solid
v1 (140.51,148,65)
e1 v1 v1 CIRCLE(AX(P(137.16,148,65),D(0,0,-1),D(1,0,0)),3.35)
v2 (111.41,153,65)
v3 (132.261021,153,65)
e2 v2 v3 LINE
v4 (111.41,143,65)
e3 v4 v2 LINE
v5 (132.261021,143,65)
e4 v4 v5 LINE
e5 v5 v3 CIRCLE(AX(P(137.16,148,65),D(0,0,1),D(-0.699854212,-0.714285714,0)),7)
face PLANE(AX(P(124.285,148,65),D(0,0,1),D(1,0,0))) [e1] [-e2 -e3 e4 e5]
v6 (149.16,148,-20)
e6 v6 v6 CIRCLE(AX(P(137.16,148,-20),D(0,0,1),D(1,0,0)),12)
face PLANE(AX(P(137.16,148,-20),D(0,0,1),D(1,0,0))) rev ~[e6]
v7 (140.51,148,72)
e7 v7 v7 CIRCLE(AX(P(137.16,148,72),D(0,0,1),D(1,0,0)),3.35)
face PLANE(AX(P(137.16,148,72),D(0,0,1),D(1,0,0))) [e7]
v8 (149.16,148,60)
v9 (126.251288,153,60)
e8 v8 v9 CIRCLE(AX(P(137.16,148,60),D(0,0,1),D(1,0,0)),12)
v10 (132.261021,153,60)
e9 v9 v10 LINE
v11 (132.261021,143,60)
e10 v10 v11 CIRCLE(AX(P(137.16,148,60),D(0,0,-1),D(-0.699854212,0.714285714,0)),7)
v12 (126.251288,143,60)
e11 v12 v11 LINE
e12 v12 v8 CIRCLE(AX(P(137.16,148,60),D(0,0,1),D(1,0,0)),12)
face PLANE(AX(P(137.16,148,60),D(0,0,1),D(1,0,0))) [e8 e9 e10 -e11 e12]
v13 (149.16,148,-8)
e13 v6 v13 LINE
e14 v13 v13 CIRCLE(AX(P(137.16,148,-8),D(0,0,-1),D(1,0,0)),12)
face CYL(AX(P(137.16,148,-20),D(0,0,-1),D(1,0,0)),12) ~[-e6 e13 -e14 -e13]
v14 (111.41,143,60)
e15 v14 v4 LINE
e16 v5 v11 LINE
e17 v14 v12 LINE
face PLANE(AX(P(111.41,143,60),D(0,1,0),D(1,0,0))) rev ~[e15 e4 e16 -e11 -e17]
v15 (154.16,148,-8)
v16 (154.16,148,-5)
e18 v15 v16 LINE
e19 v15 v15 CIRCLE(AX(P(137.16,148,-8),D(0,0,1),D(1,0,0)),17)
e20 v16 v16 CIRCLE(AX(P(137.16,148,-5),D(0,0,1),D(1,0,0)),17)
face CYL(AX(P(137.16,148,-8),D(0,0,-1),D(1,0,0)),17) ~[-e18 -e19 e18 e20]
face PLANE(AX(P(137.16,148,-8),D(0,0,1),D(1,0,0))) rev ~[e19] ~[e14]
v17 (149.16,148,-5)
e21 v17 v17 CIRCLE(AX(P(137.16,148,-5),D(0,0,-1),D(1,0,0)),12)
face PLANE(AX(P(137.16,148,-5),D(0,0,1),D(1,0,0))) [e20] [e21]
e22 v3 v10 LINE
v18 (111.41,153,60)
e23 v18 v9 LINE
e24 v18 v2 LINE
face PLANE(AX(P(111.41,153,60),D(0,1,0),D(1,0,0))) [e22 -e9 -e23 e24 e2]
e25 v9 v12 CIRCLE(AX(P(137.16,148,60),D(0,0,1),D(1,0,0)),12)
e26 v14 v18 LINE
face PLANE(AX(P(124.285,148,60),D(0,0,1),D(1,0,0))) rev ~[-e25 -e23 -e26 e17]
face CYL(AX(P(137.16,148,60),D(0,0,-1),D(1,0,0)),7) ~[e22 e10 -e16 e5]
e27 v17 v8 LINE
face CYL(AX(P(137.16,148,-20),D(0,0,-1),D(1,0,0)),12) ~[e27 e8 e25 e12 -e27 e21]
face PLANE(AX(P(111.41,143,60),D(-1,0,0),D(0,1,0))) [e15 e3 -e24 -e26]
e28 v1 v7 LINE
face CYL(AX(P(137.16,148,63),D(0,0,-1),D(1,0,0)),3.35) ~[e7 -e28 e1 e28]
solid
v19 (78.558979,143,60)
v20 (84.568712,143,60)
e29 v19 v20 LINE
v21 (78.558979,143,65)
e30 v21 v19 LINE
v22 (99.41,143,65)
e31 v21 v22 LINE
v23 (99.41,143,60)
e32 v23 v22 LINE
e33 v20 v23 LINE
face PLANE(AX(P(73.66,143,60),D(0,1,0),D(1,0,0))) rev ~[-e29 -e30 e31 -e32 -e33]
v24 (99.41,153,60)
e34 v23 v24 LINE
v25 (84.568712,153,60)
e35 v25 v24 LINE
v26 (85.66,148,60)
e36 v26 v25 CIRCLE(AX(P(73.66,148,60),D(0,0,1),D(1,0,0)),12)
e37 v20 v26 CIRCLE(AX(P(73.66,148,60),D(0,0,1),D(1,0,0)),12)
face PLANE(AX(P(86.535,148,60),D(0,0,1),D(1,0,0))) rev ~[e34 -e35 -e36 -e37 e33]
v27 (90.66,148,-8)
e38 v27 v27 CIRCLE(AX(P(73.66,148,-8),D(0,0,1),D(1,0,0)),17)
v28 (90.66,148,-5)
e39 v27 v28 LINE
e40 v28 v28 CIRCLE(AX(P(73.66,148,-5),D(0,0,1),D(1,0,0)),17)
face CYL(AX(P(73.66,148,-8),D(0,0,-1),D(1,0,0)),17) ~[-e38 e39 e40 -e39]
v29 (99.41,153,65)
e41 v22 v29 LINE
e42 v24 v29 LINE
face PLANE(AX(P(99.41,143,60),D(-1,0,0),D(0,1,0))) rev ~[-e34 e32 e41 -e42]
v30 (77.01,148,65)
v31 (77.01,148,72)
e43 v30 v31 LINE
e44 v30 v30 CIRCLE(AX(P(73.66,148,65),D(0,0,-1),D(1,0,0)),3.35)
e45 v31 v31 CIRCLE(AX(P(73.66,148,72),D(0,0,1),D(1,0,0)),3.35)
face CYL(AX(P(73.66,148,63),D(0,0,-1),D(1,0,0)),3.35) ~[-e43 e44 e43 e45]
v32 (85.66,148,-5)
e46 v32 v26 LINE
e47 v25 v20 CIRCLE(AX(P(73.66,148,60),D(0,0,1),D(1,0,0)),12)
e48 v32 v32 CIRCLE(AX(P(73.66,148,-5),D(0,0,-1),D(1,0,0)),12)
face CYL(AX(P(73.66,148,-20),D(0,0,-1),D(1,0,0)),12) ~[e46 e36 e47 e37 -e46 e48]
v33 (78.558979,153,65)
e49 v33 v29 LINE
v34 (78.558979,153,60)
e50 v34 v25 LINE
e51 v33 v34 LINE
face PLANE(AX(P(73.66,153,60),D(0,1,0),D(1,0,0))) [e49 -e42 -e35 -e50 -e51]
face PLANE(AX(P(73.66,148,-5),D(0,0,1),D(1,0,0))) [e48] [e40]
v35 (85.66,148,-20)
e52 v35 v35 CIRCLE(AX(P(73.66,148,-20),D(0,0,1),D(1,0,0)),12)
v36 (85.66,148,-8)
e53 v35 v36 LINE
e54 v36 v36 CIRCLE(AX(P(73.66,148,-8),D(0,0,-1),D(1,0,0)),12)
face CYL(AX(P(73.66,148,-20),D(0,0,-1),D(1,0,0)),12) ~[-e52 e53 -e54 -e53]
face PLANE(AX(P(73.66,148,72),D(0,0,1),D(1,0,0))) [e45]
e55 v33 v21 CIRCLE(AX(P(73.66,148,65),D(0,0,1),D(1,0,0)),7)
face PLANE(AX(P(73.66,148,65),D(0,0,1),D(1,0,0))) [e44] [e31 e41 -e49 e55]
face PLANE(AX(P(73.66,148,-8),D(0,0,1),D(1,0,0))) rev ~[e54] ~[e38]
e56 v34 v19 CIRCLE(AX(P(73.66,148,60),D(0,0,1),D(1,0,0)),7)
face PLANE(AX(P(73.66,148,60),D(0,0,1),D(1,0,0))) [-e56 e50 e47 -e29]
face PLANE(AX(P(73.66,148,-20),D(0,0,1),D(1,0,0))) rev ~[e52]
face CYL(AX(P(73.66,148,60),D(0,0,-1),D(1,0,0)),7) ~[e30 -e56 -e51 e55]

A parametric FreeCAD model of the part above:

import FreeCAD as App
import Part
import Sketcher

V = App.Vector
Q = App.Units.Quantity


def add_polygon(sketch, points):
    """Adds a closed chain of lines whose ends are joined by coincident constraints."""
    first, n = sketch.GeometryCount, len(points)
    for a, b in zip(points, points[1:] + points[:1]):
        sketch.addGeometry(Part.LineSegment(App.Vector(*a, 0), App.Vector(*b, 0)), False)
    for i in range(n):
        sketch.addConstraint(Sketcher.Constraint("Coincident", first + i, 2, first + (i + 1) % n, 1))

doc = App.newDocument("Part")
body = doc.addObject("PartDesign::Body", "Body")

sketch1 = body.newObject("Sketcher::SketchObject", "Sketch")
sketch1.AttachmentSupport = (doc.getObject("XY_Plane"), [""])
sketch1.MapMode = "FlatFace"
sketch1.AttachmentOffset = App.Placement(V(0, 0, 60), App.Rotation())
sketch1.addGeometry(Part.Circle(V(73.66, 148, 0), V(0, 0, 1), 7), False)
sketch1.addConstraint(Sketcher.Constraint("Diameter", 0, Q("14 mm")))
sketch1.addConstraint(Sketcher.Constraint("DistanceY", -1, 1, 0, 3, Q("148 mm")))
sketch1.addConstraint(Sketcher.Constraint("DistanceX", -1, 1, 0, 3, Q("73.66 mm")))
pad1 = body.newObject("PartDesign::Pad", "Pad")
pad1.Profile = sketch1
pad1.Length = 5
body2 = doc.addObject("PartDesign::Body", "Body001")

sketch2 = body2.newObject("Sketcher::SketchObject", "Sketch001")
sketch2.AttachmentSupport = (doc.getObject("XY_Plane001"), [""])
sketch2.MapMode = "FlatFace"
sketch2.AttachmentOffset = App.Placement(V(0, 0, 63), App.Rotation())
sketch2.addGeometry(Part.Circle(V(73.66, 148, 0), V(0, 0, 1), 3.35), False)
sketch2.addConstraint(Sketcher.Constraint("Diameter", 0, Q("6.7 mm")))
sketch2.addConstraint(Sketcher.Constraint("DistanceY", -1, 1, 0, 3, Q("148 mm")))
sketch2.addConstraint(Sketcher.Constraint("DistanceX", -1, 1, 0, 3, Q("73.66 mm")))
pad2 = body2.newObject("PartDesign::Pad", "Pad001")
pad2.Profile = sketch2
pad2.Length = 9
body3 = doc.addObject("PartDesign::Body", "Body002")

sketch3 = body3.newObject("Sketcher::SketchObject", "Sketch002")
sketch3.AttachmentSupport = (doc.getObject("XY_Plane002"), [""])
sketch3.MapMode = "FlatFace"
sketch3.AttachmentOffset = App.Placement(V(0, 0, -8), App.Rotation())
sketch3.addGeometry(Part.Circle(V(73.66, 148, 0), V(0, 0, 1), 17), False)
sketch3.addConstraint(Sketcher.Constraint("Diameter", 0, Q("34 mm")))
sketch3.addConstraint(Sketcher.Constraint("DistanceY", -1, 1, 0, 3, Q("148 mm")))
sketch3.addConstraint(Sketcher.Constraint("DistanceX", -1, 1, 0, 3, Q("73.66 mm")))
pad3 = body3.newObject("PartDesign::Pad", "Pad002")
pad3.Profile = sketch3
pad3.Length = 3
body4 = doc.addObject("PartDesign::Body", "Body003")

sketch4 = body4.newObject("Sketcher::SketchObject", "Sketch003")
sketch4.AttachmentSupport = (doc.getObject("XY_Plane003"), [""])
sketch4.MapMode = "FlatFace"
sketch4.AttachmentOffset = App.Placement(V(0, 0, -20), App.Rotation())
sketch4.addGeometry(Part.Circle(V(73.66, 148, 0), V(0, 0, 1), 12), False)
sketch4.addConstraint(Sketcher.Constraint("Diameter", 0, Q("24 mm")))
sketch4.addConstraint(Sketcher.Constraint("DistanceY", -1, 1, 0, 3, Q("148 mm")))
sketch4.addConstraint(Sketcher.Constraint("DistanceX", -1, 1, 0, 3, Q("73.66 mm")))
pad4 = body4.newObject("PartDesign::Pad", "Pad003")
pad4.Profile = sketch4
pad4.Length = 80
doc.recompute()

boolean = body4.newObject("PartDesign::Boolean", "Boolean")
boolean.Type = "Fuse"
boolean.addObjects([body3])
body5 = doc.addObject("PartDesign::Body", "Body004")
doc.recompute()

body4.Placement = App.Placement(V(63.5, 0, 0), App.Rotation(V(0, 0, 1), 0))
boolean2 = body5.newObject("PartDesign::Boolean", "Boolean001")
boolean2.Type = "Fuse"
boolean2.addObjects([body4])
body6 = doc.addObject("PartDesign::Body", "Body005")

sketch5 = body6.newObject("Sketcher::SketchObject", "Sketch004")
sketch5.AttachmentSupport = (doc.getObject("XY_Plane005"), [""])
sketch5.MapMode = "FlatFace"
sketch5.AttachmentOffset = App.Placement(V(0, 0, 60), App.Rotation())
sketch5.addGeometry(Part.Circle(V(137.16, 148, 0), V(0, 0, 1), 7), False)
sketch5.addConstraint(Sketcher.Constraint("Diameter", 0, Q("14 mm")))
sketch5.addConstraint(Sketcher.Constraint("DistanceY", -1, 1, 0, 3, Q("148 mm")))
sketch5.addConstraint(Sketcher.Constraint("DistanceX", -1, 1, 0, 3, Q("137.16 mm")))
pad5 = body6.newObject("PartDesign::Pad", "Pad004")
pad5.Profile = sketch5
pad5.Length = 5
body7 = doc.addObject("PartDesign::Body", "Body006")

sketch6 = body7.newObject("Sketcher::SketchObject", "Sketch005")
sketch6.AttachmentSupport = (doc.getObject("XY_Plane006"), [""])
sketch6.MapMode = "FlatFace"
sketch6.AttachmentOffset = App.Placement(V(0, 0, 60), App.Rotation())
add_polygon(sketch6, [(111.41, 153), (111.41, 143), (137.16, 143), (137.16, 153)])
sketch6.addConstraint(Sketcher.Constraint("Vertical", 0))
sketch6.addConstraint(Sketcher.Constraint("Horizontal", 1))
sketch6.addConstraint(Sketcher.Constraint("Vertical", 2))
sketch6.addConstraint(Sketcher.Constraint("Horizontal", 3))
sketch6.addConstraint(Sketcher.Constraint("DistanceY", 0, 2, 0, 1, Q("10 mm")))
sketch6.addConstraint(Sketcher.Constraint("DistanceY", -1, 1, 0, 2, Q("143 mm")))
sketch6.addConstraint(Sketcher.Constraint("DistanceX", 1, 1, 1, 2, Q("25.75 mm")))
sketch6.addConstraint(Sketcher.Constraint("DistanceX", -1, 1, 0, 2, Q("111.41 mm")))
pad6 = body7.newObject("PartDesign::Pad", "Pad005")
pad6.Profile = sketch6
pad6.Length = 5
body8 = doc.addObject("PartDesign::Body", "Body007")

sketch7 = body8.newObject("Sketcher::SketchObject", "Sketch006")
sketch7.AttachmentSupport = (doc.getObject("XY_Plane007"), [""])
sketch7.MapMode = "FlatFace"
sketch7.AttachmentOffset = App.Placement(V(0, 0, 63), App.Rotation())
sketch7.addGeometry(Part.Circle(V(137.16, 148, 0), V(0, 0, 1), 3.35), False)
sketch7.addConstraint(Sketcher.Constraint("Diameter", 0, Q("6.7 mm")))
sketch7.addConstraint(Sketcher.Constraint("DistanceY", -1, 1, 0, 3, Q("148 mm")))
sketch7.addConstraint(Sketcher.Constraint("DistanceX", -1, 1, 0, 3, Q("137.16 mm")))
pad7 = body8.newObject("PartDesign::Pad", "Pad006")
pad7.Profile = sketch7
pad7.Length = 9
body9 = doc.addObject("PartDesign::Body", "Body008")

sketch8 = body9.newObject("Sketcher::SketchObject", "Sketch007")
sketch8.AttachmentSupport = (doc.getObject("XY_Plane008"), [""])
sketch8.MapMode = "FlatFace"
sketch8.AttachmentOffset = App.Placement(V(0, 0, -8), App.Rotation())
sketch8.addGeometry(Part.Circle(V(73.66, 148, 0), V(0, 0, 1), 17), False)
sketch8.addConstraint(Sketcher.Constraint("Diameter", 0, Q("34 mm")))
sketch8.addConstraint(Sketcher.Constraint("DistanceY", -1, 1, 0, 3, Q("148 mm")))
sketch8.addConstraint(Sketcher.Constraint("DistanceX", -1, 1, 0, 3, Q("73.66 mm")))
pad8 = body9.newObject("PartDesign::Pad", "Pad007")
pad8.Profile = sketch8
pad8.Length = 3
body10 = doc.addObject("PartDesign::Body", "Body009")

sketch9 = body10.newObject("Sketcher::SketchObject", "Sketch008")
sketch9.AttachmentSupport = (doc.getObject("XY_Plane009"), [""])
sketch9.MapMode = "FlatFace"
sketch9.AttachmentOffset = App.Placement(V(0, 0, -20), App.Rotation())
sketch9.addGeometry(Part.Circle(V(73.66, 148, 0), V(0, 0, 1), 12), False)
sketch9.addConstraint(Sketcher.Constraint("Diameter", 0, Q("24 mm")))
sketch9.addConstraint(Sketcher.Constraint("DistanceY", -1, 1, 0, 3, Q("148 mm")))
sketch9.addConstraint(Sketcher.Constraint("DistanceX", -1, 1, 0, 3, Q("73.66 mm")))
pad9 = body10.newObject("PartDesign::Pad", "Pad008")
pad9.Profile = sketch9
pad9.Length = 80
doc.recompute()

boolean3 = body10.newObject("PartDesign::Boolean", "Boolean002")
boolean3.Type = "Fuse"
boolean3.addObjects([body9])
body11 = doc.addObject("PartDesign::Body", "Body010")
body11.AllowCompound = True

sketch10 = body11.newObject("Sketcher::SketchObject", "Sketch009")
sketch10.AttachmentSupport = (doc.getObject("XY_Plane010"), [""])
sketch10.MapMode = "FlatFace"
sketch10.AttachmentOffset = App.Placement(V(0, 0, 60), App.Rotation())
add_polygon(sketch10, [(73.66, 153), (73.66, 143), (99.41, 143), (99.41, 153)])
sketch10.addConstraint(Sketcher.Constraint("Vertical", 0))
sketch10.addConstraint(Sketcher.Constraint("Horizontal", 1))
sketch10.addConstraint(Sketcher.Constraint("Vertical", 2))
sketch10.addConstraint(Sketcher.Constraint("Horizontal", 3))
sketch10.addConstraint(Sketcher.Constraint("DistanceY", 0, 2, 0, 1, Q("10 mm")))
sketch10.addConstraint(Sketcher.Constraint("DistanceY", -1, 1, 0, 2, Q("143 mm")))
sketch10.addConstraint(Sketcher.Constraint("DistanceX", 1, 1, 1, 2, Q("25.75 mm")))
sketch10.addConstraint(Sketcher.Constraint("DistanceX", -1, 1, 0, 2, Q("73.66 mm")))
pad10 = body11.newObject("PartDesign::Pad", "Pad009")
pad10.Profile = sketch10
pad10.Length = 5
doc.recompute()

boolean4 = body11.newObject("PartDesign::Boolean", "Boolean003")
boolean4.Type = "Fuse"
boolean4.addObjects([body])
doc.recompute()

boolean5 = body11.newObject("PartDesign::Boolean", "Boolean004")
boolean5.Type = "Fuse"
boolean5.addObjects([body2])
doc.recompute()

boolean6 = body11.newObject("PartDesign::Boolean", "Boolean005")
boolean6.Type = "Fuse"
boolean6.addObjects([body5])
doc.recompute()

boolean7 = body11.newObject("PartDesign::Boolean", "Boolean006")
boolean7.Type = "Fuse"
boolean7.addObjects([body6])
doc.recompute()

boolean8 = body11.newObject("PartDesign::Boolean", "Boolean007")
boolean8.Type = "Fuse"
boolean8.addObjects([body7])
doc.recompute()

boolean9 = body11.newObject("PartDesign::Boolean", "Boolean008")
boolean9.Type = "Fuse"
boolean9.addObjects([body8])
doc.recompute()

boolean10 = body11.newObject("PartDesign::Boolean", "Boolean009")
boolean10.Type = "Fuse"
boolean10.addObjects([body10])

doc.recompute()
